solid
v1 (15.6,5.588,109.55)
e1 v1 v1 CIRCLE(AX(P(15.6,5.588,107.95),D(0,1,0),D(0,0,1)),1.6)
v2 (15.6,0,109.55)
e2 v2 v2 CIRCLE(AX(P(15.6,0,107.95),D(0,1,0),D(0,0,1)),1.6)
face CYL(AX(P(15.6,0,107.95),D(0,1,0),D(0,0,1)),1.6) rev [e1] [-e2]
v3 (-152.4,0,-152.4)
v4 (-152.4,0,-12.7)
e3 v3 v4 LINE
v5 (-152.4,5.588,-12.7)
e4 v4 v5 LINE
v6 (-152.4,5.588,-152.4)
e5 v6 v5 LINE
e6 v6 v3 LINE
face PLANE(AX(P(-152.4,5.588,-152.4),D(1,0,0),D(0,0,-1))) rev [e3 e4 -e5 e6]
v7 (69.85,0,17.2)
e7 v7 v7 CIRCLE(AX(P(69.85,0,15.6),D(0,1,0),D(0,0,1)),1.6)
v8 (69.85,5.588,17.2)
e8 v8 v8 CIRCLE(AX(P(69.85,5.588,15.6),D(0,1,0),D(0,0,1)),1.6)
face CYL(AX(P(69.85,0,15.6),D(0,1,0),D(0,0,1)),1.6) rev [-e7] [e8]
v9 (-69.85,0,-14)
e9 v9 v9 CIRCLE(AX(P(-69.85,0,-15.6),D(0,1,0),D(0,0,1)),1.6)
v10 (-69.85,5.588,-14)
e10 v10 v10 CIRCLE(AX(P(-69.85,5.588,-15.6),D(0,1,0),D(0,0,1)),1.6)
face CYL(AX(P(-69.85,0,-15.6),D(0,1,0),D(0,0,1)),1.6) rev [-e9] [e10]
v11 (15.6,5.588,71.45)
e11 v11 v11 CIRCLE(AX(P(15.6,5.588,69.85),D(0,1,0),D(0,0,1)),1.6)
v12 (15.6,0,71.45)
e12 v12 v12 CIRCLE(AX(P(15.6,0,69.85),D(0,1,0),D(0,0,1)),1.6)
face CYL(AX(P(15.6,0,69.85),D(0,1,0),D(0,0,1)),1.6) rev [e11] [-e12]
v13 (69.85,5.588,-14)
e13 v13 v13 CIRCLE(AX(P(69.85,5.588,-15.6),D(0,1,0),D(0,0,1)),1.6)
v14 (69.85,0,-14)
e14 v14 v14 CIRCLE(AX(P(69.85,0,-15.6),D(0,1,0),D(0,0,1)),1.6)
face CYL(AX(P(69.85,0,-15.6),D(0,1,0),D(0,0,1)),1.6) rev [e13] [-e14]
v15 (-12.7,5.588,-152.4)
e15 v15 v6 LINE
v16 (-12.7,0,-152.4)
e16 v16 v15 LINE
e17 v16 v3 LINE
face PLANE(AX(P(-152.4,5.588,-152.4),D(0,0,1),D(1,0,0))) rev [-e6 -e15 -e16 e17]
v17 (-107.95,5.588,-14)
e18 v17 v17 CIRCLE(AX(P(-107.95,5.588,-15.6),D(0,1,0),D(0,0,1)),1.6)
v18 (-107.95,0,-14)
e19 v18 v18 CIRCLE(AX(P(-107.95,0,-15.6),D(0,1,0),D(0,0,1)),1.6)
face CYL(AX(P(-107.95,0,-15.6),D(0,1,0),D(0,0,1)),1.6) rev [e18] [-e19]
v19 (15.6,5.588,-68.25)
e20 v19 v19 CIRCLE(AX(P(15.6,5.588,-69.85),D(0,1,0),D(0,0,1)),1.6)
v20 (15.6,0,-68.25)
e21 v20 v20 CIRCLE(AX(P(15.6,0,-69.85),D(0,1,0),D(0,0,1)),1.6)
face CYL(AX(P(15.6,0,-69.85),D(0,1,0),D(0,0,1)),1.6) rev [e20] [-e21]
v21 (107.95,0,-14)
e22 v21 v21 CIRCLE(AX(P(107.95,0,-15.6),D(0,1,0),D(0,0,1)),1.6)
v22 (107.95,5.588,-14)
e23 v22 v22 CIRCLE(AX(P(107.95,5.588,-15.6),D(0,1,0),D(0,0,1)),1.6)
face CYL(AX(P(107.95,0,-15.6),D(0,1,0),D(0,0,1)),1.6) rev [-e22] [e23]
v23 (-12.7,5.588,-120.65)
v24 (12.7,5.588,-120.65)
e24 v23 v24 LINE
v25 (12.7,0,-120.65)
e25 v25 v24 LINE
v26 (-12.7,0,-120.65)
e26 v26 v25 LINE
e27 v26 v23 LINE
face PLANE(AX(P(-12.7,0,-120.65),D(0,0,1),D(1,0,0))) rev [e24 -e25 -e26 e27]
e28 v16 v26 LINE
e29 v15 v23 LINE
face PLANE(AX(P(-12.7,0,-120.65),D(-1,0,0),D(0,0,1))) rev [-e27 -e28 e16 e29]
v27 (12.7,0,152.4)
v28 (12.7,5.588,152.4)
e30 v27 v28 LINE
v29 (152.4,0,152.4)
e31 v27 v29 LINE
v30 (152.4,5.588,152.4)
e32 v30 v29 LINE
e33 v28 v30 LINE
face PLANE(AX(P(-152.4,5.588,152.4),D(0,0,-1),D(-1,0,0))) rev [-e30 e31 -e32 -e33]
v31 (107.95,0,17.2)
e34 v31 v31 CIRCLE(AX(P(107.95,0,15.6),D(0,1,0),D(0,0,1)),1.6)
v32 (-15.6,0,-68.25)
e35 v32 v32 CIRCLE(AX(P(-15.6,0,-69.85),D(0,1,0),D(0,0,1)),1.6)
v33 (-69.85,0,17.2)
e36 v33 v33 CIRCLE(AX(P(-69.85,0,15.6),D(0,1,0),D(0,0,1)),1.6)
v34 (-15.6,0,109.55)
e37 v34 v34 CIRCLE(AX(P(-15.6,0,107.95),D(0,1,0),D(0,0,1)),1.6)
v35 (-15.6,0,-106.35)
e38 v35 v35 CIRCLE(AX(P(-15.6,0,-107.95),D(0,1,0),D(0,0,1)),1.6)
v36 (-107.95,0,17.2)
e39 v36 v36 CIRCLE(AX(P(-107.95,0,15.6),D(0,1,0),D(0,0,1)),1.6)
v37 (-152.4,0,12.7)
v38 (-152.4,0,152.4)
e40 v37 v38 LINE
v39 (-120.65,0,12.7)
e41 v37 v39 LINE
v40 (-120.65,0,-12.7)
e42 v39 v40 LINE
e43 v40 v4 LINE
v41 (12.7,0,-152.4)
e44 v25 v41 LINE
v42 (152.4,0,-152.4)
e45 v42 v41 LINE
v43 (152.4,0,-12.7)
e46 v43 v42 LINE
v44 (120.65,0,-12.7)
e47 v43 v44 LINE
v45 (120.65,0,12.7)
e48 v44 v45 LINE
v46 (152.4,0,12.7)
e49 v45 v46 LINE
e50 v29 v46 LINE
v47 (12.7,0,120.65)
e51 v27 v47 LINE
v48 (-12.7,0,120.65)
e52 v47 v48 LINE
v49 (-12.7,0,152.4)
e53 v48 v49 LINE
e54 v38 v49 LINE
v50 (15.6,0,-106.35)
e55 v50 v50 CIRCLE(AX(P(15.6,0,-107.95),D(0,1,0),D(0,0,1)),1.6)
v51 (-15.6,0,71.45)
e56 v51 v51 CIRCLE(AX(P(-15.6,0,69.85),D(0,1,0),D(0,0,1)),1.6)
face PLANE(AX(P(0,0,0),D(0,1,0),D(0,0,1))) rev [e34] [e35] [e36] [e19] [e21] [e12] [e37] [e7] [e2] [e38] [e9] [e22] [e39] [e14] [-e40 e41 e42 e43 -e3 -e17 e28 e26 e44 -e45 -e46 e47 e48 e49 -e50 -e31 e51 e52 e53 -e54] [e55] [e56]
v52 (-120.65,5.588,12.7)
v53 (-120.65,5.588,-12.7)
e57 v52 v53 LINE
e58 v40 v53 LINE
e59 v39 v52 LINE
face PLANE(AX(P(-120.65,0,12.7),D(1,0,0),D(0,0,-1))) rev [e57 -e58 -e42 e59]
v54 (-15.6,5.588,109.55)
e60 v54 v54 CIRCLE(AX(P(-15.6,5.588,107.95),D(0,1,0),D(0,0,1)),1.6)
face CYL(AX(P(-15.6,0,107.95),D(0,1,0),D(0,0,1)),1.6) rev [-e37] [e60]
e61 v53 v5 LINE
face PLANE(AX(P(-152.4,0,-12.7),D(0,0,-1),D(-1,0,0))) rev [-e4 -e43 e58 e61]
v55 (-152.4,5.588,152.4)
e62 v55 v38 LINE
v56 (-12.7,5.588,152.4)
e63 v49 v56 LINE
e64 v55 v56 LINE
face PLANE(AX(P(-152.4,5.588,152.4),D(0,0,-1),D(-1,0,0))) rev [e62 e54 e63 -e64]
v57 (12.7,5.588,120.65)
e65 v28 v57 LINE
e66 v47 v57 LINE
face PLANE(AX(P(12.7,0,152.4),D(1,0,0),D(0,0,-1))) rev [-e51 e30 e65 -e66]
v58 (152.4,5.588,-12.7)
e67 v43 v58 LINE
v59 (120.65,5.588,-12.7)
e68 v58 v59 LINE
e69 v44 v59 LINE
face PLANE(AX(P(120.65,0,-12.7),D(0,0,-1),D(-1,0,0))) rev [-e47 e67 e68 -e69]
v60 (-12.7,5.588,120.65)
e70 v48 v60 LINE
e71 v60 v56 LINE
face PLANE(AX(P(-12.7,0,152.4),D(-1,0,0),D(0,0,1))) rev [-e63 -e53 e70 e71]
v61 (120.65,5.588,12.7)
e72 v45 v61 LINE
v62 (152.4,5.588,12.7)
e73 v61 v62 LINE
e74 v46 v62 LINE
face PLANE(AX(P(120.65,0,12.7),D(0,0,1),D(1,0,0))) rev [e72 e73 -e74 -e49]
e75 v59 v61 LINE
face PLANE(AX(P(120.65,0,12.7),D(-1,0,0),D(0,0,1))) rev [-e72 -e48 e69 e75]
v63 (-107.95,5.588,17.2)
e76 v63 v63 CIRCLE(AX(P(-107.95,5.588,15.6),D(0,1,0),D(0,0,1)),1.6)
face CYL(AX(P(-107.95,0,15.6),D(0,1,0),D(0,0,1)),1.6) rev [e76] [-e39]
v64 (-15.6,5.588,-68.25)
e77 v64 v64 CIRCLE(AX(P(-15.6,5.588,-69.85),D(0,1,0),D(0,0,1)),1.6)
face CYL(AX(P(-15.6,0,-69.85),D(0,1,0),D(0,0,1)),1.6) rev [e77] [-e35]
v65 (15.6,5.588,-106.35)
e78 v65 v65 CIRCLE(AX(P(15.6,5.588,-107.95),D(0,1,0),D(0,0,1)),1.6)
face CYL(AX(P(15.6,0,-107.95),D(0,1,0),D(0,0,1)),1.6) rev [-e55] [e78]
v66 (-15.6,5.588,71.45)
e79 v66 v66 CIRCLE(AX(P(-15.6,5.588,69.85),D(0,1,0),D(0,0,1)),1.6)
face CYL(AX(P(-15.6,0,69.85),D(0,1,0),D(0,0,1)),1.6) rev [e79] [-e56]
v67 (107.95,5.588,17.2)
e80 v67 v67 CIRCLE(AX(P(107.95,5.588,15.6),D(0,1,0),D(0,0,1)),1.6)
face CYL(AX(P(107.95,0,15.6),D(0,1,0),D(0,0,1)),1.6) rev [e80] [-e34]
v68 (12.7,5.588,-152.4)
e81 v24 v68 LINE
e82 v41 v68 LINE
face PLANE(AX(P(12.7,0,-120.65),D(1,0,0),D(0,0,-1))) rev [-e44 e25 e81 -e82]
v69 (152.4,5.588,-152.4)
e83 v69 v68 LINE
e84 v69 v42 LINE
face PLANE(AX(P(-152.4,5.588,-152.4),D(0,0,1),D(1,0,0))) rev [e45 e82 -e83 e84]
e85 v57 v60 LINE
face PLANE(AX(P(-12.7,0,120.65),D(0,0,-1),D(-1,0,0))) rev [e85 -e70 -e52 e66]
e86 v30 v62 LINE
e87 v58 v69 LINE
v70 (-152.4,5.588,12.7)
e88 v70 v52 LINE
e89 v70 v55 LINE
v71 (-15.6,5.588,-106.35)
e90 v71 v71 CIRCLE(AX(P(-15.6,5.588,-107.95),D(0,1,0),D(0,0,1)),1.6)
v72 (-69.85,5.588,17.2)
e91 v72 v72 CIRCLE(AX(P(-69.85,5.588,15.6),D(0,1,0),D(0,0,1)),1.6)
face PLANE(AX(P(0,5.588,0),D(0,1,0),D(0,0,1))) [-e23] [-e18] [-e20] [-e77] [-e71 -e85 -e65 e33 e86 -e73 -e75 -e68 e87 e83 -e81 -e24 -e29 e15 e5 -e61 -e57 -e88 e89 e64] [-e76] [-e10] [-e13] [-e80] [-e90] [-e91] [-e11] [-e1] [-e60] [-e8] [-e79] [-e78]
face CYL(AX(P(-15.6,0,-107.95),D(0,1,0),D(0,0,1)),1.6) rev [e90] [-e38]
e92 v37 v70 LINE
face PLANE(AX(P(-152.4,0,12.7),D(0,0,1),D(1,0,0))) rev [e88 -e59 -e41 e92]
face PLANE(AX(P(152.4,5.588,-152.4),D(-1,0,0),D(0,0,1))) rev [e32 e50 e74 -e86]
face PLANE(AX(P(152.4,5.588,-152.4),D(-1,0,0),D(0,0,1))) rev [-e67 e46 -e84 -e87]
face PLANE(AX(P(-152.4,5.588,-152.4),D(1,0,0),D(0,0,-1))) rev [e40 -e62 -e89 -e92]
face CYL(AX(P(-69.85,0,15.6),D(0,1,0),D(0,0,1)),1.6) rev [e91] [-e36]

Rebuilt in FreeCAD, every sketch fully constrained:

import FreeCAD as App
import Part
import Sketcher

V = App.Vector
Q = App.Units.Quantity

doc = App.newDocument("Part")
params = doc.addObject("Spreadsheet::Sheet", "Params")
for row, (alias, value) in enumerate([
    ("sketch1_width", "12 in"),
    ("pad1_length", "0.22 in"),
    ("sketch2_width", "1 in"),
    ("sketch2_width2", "1.25 in"),
], start=1):
    params.set(f"A{row}", alias)
    params.set(f"B{row}", "=" + value)
    params.setAlias(f"B{row}", alias)

body = doc.addObject("PartDesign::Body", "Body")

# Sketch on XZ plane
sketch1 = body.newObject("Sketcher::SketchObject", "Sketch")
sketch1.AttachmentSupport = (doc.getObject("XZ_Plane"), [""])
sketch1.MapMode = "FlatFace"
sketch1.addGeometry([
    Part.LineSegment(V(-152, -152, 0), V(-152, 152, 0)),
    Part.LineSegment(V(-152, 152, 0), V(152, 152, 0)),
    Part.LineSegment(V(152, 152, 0), V(152, -152, 0)),
    Part.LineSegment(V(152, -152, 0), V(-152, -152, 0)),
], False)
sketch1.addConstraint([
    Sketcher.Constraint("Coincident", 0, 2, 1, 1),
    Sketcher.Constraint("Coincident", 1, 2, 2, 1),
    Sketcher.Constraint("Coincident", 2, 2, 3, 1),
    Sketcher.Constraint("Coincident", 3, 2, 0, 1),
    Sketcher.Constraint("Vertical", 0),
    Sketcher.Constraint("Horizontal", 1),
    Sketcher.Constraint("Vertical", 2),
    Sketcher.Constraint("Horizontal", 3),
    Sketcher.Constraint("Symmetric", 0, 2, 2, 2, -1, 1),
    Sketcher.Constraint("Equal", 3, 0),
    Sketcher.Constraint("DistanceX", 1, 1, 1, 2, Q("12 in")),
])
sketch1.setExpression("Constraints[10]", "Params.sketch1_width")
pad1 = body.newObject("PartDesign::Pad", "Pad")
pad1.Profile = sketch1
pad1.setExpression("Length", "Params.pad1_length")
pad1.Reversed = True

# Sketch on XZ plane
sketch2 = body.newObject("Sketcher::SketchObject", "Sketch001")
sketch2.AttachmentSupport = (doc.getObject("XZ_Plane"), [""])
sketch2.MapMode = "FlatFace"
sketch2.AttachmentOffset = App.Placement(V(0, 0, -0.22 * 25.4), App.Rotation())
sketch2.addGeometry([
    Part.Circle(V(-108, -15.6, 0), V(0, 0, 1), 1.6),  # 0
    Part.Circle(V(-69.8, -15.6, 0), V(0, 0, 1), 1.6),  # 1
    Part.Circle(V(-108, 15.6, 0), V(0, 0, 1), 1.6),  # 2
    Part.Circle(V(-69.8, 15.6, 0), V(0, 0, 1), 1.6),  # 3
    Part.Circle(V(-15.6, 69.8, 0), V(0, 0, 1), 1.6),  # 4
    Part.Circle(V(15.6, 69.8, 0), V(0, 0, 1), 1.6),  # 5
    Part.Circle(V(-15.6, 108, 0), V(0, 0, 1), 1.6),  # 6
    Part.Circle(V(15.6, 108, 0), V(0, 0, 1), 1.6),  # 7
    Part.Circle(V(69.8, 15.6, 0), V(0, 0, 1), 1.6),  # 8
    Part.Circle(V(69.8, -15.6, 0), V(0, 0, 1), 1.6),  # 9
    Part.Circle(V(108, -15.6, 0), V(0, 0, 1), 1.6),  # 10
    Part.Circle(V(108, 15.6, 0), V(0, 0, 1), 1.6),  # 11
    Part.Circle(V(-15.6, -69.8, 0), V(0, 0, 1), 1.6),  # 12
    Part.Circle(V(-15.6, -108, 0), V(0, 0, 1), 1.6),  # 13
    Part.Circle(V(15.6, -108, 0), V(0, 0, 1), 1.6),  # 14
    Part.Circle(V(15.6, -69.8, 0), V(0, 0, 1), 1.6),  # 15
    Part.LineSegment(V(-152.4, -12.7, 0), V(-152.4, 12.7, 0)),  # 16
    Part.LineSegment(V(-152.4, 12.7, 0), V(-120.7, 12.7, 0)),  # 17
    Part.LineSegment(V(-120.7, 12.7, 0), V(-120.7, -12.7, 0)),  # 18
    Part.LineSegment(V(-120.7, -12.7, 0), V(-152.4, -12.7, 0)),  # 19
    Part.LineSegment(V(-12.7, -152.4, 0), V(-12.7, -120.7, 0)),  # 20
    Part.LineSegment(V(-12.7, -120.7, 0), V(12.7, -120.7, 0)),  # 21
    Part.LineSegment(V(12.7, -120.7, 0), V(12.7, -152.4, 0)),  # 22
    Part.LineSegment(V(12.7, -152.4, 0), V(-12.7, -152.4, 0)),  # 23
    Part.LineSegment(V(120.7, -12.7, 0), V(120.7, 12.7, 0)),  # 24
    Part.LineSegment(V(120.7, 12.7, 0), V(152.4, 12.7, 0)),  # 25
    Part.LineSegment(V(152.4, 12.7, 0), V(152.4, -12.7, 0)),  # 26
    Part.LineSegment(V(152.4, -12.7, 0), V(120.7, -12.7, 0)),  # 27
    Part.LineSegment(V(-12.7, 120.7, 0), V(-12.7, 152.4, 0)),  # 28
    Part.LineSegment(V(-12.7, 152.4, 0), V(12.7, 152.4, 0)),  # 29
    Part.LineSegment(V(12.7, 152.4, 0), V(12.7, 120.7, 0)),  # 30
    Part.LineSegment(V(12.7, 120.7, 0), V(-12.7, 120.7, 0)),  # 31
], False)
sketch2.addConstraint([
    Sketcher.Constraint("Coincident", 16, 2, 17, 1),
    Sketcher.Constraint("Coincident", 17, 2, 18, 1),
    Sketcher.Constraint("Coincident", 18, 2, 19, 1),
    Sketcher.Constraint("Coincident", 19, 2, 16, 1),
    Sketcher.Constraint("Coincident", 20, 2, 21, 1),
    Sketcher.Constraint("Coincident", 21, 2, 22, 1),
    Sketcher.Constraint("Coincident", 22, 2, 23, 1),
    Sketcher.Constraint("Coincident", 23, 2, 20, 1),
    Sketcher.Constraint("Coincident", 24, 2, 25, 1),
    Sketcher.Constraint("Coincident", 25, 2, 26, 1),
    Sketcher.Constraint("Coincident", 26, 2, 27, 1),
    Sketcher.Constraint("Coincident", 27, 2, 24, 1),
    Sketcher.Constraint("Coincident", 28, 2, 29, 1),
    Sketcher.Constraint("Coincident", 29, 2, 30, 1),
    Sketcher.Constraint("Coincident", 30, 2, 31, 1),
    Sketcher.Constraint("Coincident", 31, 2, 28, 1),
    Sketcher.Constraint("Vertical", 16),
    Sketcher.Constraint("Horizontal", 17),
    Sketcher.Constraint("Vertical", 18),
    Sketcher.Constraint("Horizontal", 19),
    Sketcher.Constraint("Vertical", 20),
    Sketcher.Constraint("Horizontal", 21),
    Sketcher.Constraint("Vertical", 22),
    Sketcher.Constraint("Horizontal", 23),
    Sketcher.Constraint("Vertical", 24),
    Sketcher.Constraint("Horizontal", 25),
    Sketcher.Constraint("Vertical", 26),
    Sketcher.Constraint("Horizontal", 27),
    Sketcher.Constraint("Vertical", 28),
    Sketcher.Constraint("Horizontal", 29),
    Sketcher.Constraint("Vertical", 30),
    Sketcher.Constraint("Horizontal", 31),
    Sketcher.Constraint("Equal", 0, 1),
    Sketcher.Constraint("Equal", 1, 2),
    Sketcher.Constraint("Equal", 2, 3),
    Sketcher.Constraint("Equal", 3, 4),
    Sketcher.Constraint("Equal", 4, 5),
    Sketcher.Constraint("Equal", 5, 6),
    Sketcher.Constraint("Equal", 6, 7),
    Sketcher.Constraint("Equal", 7, 8),
    Sketcher.Constraint("Equal", 8, 9),
    Sketcher.Constraint("Equal", 9, 10),
    Sketcher.Constraint("Equal", 10, 11),
    Sketcher.Constraint("Equal", 11, 12),
    Sketcher.Constraint("Equal", 12, 13),
    Sketcher.Constraint("Equal", 13, 14),
    Sketcher.Constraint("Equal", 14, 15),
    Sketcher.Constraint("Symmetric", 1, 3, 8, 3, -1, 1),
    Sketcher.Constraint("Symmetric", 3, 3, 9, 3, -1, 1),
    Sketcher.Constraint("Symmetric", 2, 3, 10, 3, -1, 1),
    Sketcher.Constraint("Symmetric", 0, 3, 11, 3, -1, 1),
    Sketcher.Constraint("Symmetric", 5, 3, 12, 3, -1, 1),
    Sketcher.Constraint("Symmetric", 7, 3, 13, 3, -1, 1),
    Sketcher.Constraint("Symmetric", 6, 3, 14, 3, -1, 1),
    Sketcher.Constraint("Symmetric", 4, 3, 15, 3, -1, 1),
    Sketcher.Constraint("Symmetric", 18, 2, 24, 2, -1, 1),
    Sketcher.Constraint("Symmetric", 16, 2, 26, 2, -1, 1),
    Sketcher.Constraint("Symmetric", 22, 2, 28, 2, -1, 1),
    Sketcher.Constraint("Symmetric", 20, 2, 30, 2, -1, 1),
    Sketcher.Constraint("Symmetric", 4, 3, 5, 3, -2),
    Sketcher.Constraint("Symmetric", 6, 3, 7, 3, -2),
    Sketcher.Constraint("Symmetric", 3, 3, 8, 3, -2),
    Sketcher.Constraint("Symmetric", 0, 3, 10, 3, -2),
    Sketcher.Constraint("Horizontal", 0, 3, 1, 3),
    Sketcher.Constraint("Horizontal", 17, 2, 24, 2),
    Sketcher.Constraint("Vertical", 4, 3, 6, 3),
    Sketcher.Constraint("Vertical", 23, 2, 28, 2),
    Sketcher.Constraint("Equal", 31, 16),
    Sketcher.Constraint("Equal", 27, 20),
    Sketcher.Constraint("DistanceX", 21, 1, 21, 2, Q("1 in")),
    Sketcher.Constraint("DistanceX", 16, 2, -1, 1, Q("6 in")),
    Sketcher.Constraint("DistanceY", 22, 2, -1, 1, Q("6 in")),
    Sketcher.Constraint("DistanceX", 17, 2, 3, 3, Q("2 in")),
    Sketcher.Constraint("DistanceY", 20, 2, 12, 3, Q("2 in")),
    Sketcher.Constraint("DistanceX", 17, 1, 17, 2, Q("1.25 in")),
    Sketcher.Constraint("DistanceX", 0, 3, 1, 3, Q("1.5 in")),
    Sketcher.Constraint("DistanceY", 4, 3, 6, 3, Q("1.5 in")),
    Sketcher.Constraint("Diameter", 0, Q("3.2 mm")),
    Sketcher.Constraint("DistanceY", 0, 3, -1, 1, Q("15.6 mm")),
    Sketcher.Constraint("DistanceX", 4, 3, -1, 1, Q("15.6 mm")),
])
sketch2.setExpression("Constraints[69]", "Params.sketch2_width")
sketch2.setExpression("Constraints[74]", "Params.sketch2_width2")
pocket1 = body.newObject("PartDesign::Pocket", "Pocket")
pocket1.Profile = sketch2
pocket1.Type = "ThroughAll"
pocket1.Reversed = True

doc.recompute()
